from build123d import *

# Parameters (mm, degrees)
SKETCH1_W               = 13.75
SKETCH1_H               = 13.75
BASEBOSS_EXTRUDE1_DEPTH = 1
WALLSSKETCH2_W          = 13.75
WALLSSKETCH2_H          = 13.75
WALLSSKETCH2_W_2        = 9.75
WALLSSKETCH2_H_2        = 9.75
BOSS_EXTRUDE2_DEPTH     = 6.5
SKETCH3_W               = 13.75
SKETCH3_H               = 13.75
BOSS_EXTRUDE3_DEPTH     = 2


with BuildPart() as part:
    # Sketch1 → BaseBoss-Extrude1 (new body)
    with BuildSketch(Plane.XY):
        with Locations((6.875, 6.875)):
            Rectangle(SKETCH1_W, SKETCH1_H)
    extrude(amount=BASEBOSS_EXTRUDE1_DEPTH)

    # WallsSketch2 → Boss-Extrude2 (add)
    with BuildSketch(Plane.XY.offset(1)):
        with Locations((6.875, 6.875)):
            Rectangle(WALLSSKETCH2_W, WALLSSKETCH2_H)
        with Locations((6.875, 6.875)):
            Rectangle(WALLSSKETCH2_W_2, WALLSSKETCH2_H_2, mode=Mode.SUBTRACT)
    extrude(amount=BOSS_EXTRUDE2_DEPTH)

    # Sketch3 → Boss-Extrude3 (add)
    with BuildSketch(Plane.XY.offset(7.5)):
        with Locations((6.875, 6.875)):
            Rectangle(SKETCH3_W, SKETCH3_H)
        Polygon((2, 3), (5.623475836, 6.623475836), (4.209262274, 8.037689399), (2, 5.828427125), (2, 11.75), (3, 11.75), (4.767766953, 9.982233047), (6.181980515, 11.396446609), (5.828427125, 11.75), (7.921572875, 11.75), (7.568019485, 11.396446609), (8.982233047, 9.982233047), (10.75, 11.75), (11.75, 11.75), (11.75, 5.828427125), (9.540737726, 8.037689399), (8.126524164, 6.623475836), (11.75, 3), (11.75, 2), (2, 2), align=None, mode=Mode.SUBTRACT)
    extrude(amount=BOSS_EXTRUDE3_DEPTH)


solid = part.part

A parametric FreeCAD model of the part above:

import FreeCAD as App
import Part
import Sketcher

V = App.Vector

doc = App.newDocument("Part")
body = doc.addObject("PartDesign::Body", "Body")

sketch1 = doc.addObject("Sketcher::SketchObject", "Sketch")
body.addObject(sketch1)
sketch1.AttachmentSupport = (doc.XY_Plane, [""])
sketch1.MapMode = "FlatFace"
sketch1.addGeometry([
    Part.LineSegment(V(0, 14, 0), V(0, 0, 0)),
    Part.LineSegment(V(0, 0, 0), V(14, 0, 0)),
    Part.LineSegment(V(14, 0, 0), V(14, 14, 0)),
    Part.LineSegment(V(14, 14, 0), V(0, 14, 0)),
], False)
sketch1.addConstraint([
    Sketcher.Constraint("Coincident", 0, 2, 1, 1),
    Sketcher.Constraint("Coincident", 1, 2, 2, 1),
    Sketcher.Constraint("Coincident", 2, 2, 3, 1),
    Sketcher.Constraint("Coincident", 3, 2, 0, 1),
    Sketcher.Constraint("Vertical", 0),
    Sketcher.Constraint("Horizontal", 1),
    Sketcher.Constraint("Vertical", 2),
    Sketcher.Constraint("Horizontal", 3),
    Sketcher.Constraint("Coincident", 0, 2, -1, 1),
    Sketcher.Constraint("Equal", 3, 0),
    Sketcher.Constraint("DistanceX", 1, 1, 1, 2, 13.75),
])
pad1 = doc.addObject("PartDesign::Pad", "Pad")
body.addObject(pad1)
pad1.Profile = sketch1
pad1.Length = 1

sketch2 = doc.addObject("Sketcher::SketchObject", "Sketch001")
body.addObject(sketch2)
sketch2.AttachmentSupport = (doc.XY_Plane, [""])
sketch2.MapMode = "FlatFace"
sketch2.AttachmentOffset = App.Placement(V(0, 0, 1), App.Rotation())
sketch2.addGeometry([
    Part.LineSegment(V(0, 14, 0), V(0, 0, 0)),
    Part.LineSegment(V(0, 0, 0), V(14, 0, 0)),
    Part.LineSegment(V(14, 0, 0), V(14, 14, 0)),
    Part.LineSegment(V(14, 14, 0), V(0, 14, 0)),
    Part.LineSegment(V(12, 2, 0), V(2, 2, 0)),
    Part.LineSegment(V(2, 2, 0), V(2, 12, 0)),
    Part.LineSegment(V(2, 12, 0), V(12, 12, 0)),
    Part.LineSegment(V(12, 12, 0), V(12, 2, 0)),
], False)
sketch2.addConstraint([
    Sketcher.Constraint("Coincident", 0, 2, 1, 1),
    Sketcher.Constraint("Coincident", 1, 2, 2, 1),
    Sketcher.Constraint("Coincident", 2, 2, 3, 1),
    Sketcher.Constraint("Coincident", 3, 2, 0, 1),
    Sketcher.Constraint("Coincident", 4, 2, 5, 1),
    Sketcher.Constraint("Coincident", 5, 2, 6, 1),
    Sketcher.Constraint("Coincident", 6, 2, 7, 1),
    Sketcher.Constraint("Coincident", 7, 2, 4, 1),
    Sketcher.Constraint("Vertical", 0),
    Sketcher.Constraint("Horizontal", 1),
    Sketcher.Constraint("Vertical", 2),
    Sketcher.Constraint("Horizontal", 3),
    Sketcher.Constraint("Horizontal", 4),
    Sketcher.Constraint("Vertical", 5),
    Sketcher.Constraint("Horizontal", 6),
    Sketcher.Constraint("Vertical", 7),
    Sketcher.Constraint("Coincident", 0, 2, -1, 1),
    Sketcher.Constraint("Equal", 3, 0),
    Sketcher.Constraint("Equal", 6, 5),
    Sketcher.Constraint("DistanceX", -1, 1, 4, 2, 2.0),
    Sketcher.Constraint("DistanceY", -1, 1, 4, 2, 2.0),
    Sketcher.Constraint("DistanceY", 5, 2, 3, 2, 2.0),
    Sketcher.Constraint("DistanceX", 1, 1, 1, 2, 13.75),
])
pad2 = doc.addObject("PartDesign::Pad", "Pad001")
body.addObject(pad2)
pad2.Profile = sketch2
pad2.Length = 6.5

sketch3 = doc.addObject("Sketcher::SketchObject", "Sketch002")
body.addObject(sketch3)
sketch3.AttachmentSupport = (doc.XY_Plane, [""])
sketch3.MapMode = "FlatFace"
sketch3.AttachmentOffset = App.Placement(V(0, 0, 7.5), App.Rotation())
sketch3.addGeometry([
    Part.LineSegment(V(0, 13.75, 0), V(0, 0, 0)),
    Part.LineSegment(V(0, 0, 0), V(13.75, 0, 0)),
    Part.LineSegment(V(13.75, 0, 0), V(13.75, 13.75, 0)),
    Part.LineSegment(V(13.75, 13.75, 0), V(0, 13.75, 0)),
    Part.LineSegment(V(2, 2, 0), V(2, 3, 0)),
    Part.LineSegment(V(2, 3, 0), V(5.62, 6.62, 0)),
    Part.LineSegment(V(5.62, 6.62, 0), V(4.21, 8.04, 0)),
    Part.LineSegment(V(4.21, 8.04, 0), V(2, 5.83, 0)),
    Part.LineSegment(V(2, 5.83, 0), V(2, 11.75, 0)),
    Part.LineSegment(V(2, 11.75, 0), V(3, 11.75, 0)),
    Part.LineSegment(V(3, 11.75, 0), V(4.77, 9.98, 0)),
    Part.LineSegment(V(4.77, 9.98, 0), V(6.18, 11.4, 0)),
    Part.LineSegment(V(6.18, 11.4, 0), V(5.83, 11.75, 0)),
    Part.LineSegment(V(5.83, 11.75, 0), V(7.92, 11.75, 0)),
    Part.LineSegment(V(7.92, 11.75, 0), V(7.57, 11.4, 0)),
    Part.LineSegment(V(7.57, 11.4, 0), V(8.98, 9.98, 0)),
    Part.LineSegment(V(8.98, 9.98, 0), V(10.75, 11.75, 0)),
    Part.LineSegment(V(10.75, 11.75, 0), V(11.75, 11.75, 0)),
    Part.LineSegment(V(11.75, 11.75, 0), V(11.75, 5.83, 0)),
    Part.LineSegment(V(11.75, 5.83, 0), V(9.54, 8.04, 0)),
    Part.LineSegment(V(9.54, 8.04, 0), V(8.13, 6.62, 0)),
    Part.LineSegment(V(8.13, 6.62, 0), V(11.75, 3, 0)),
    Part.LineSegment(V(11.75, 3, 0), V(11.75, 2, 0)),
    Part.LineSegment(V(11.75, 2, 0), V(2, 2, 0)),
], False)
sketch3.addConstraint([
    Sketcher.Constraint("Coincident", 0, 2, 1, 1),
    Sketcher.Constraint("Coincident", 1, 2, 2, 1),
    Sketcher.Constraint("Coincident", 2, 2, 3, 1),
    Sketcher.Constraint("Coincident", 3, 2, 0, 1),
    Sketcher.Constraint("Coincident", 4, 2, 5, 1),
    Sketcher.Constraint("Coincident", 5, 2, 6, 1),
    Sketcher.Constraint("Coincident", 6, 2, 7, 1),
    Sketcher.Constraint("Coincident", 7, 2, 8, 1),
    Sketcher.Constraint("Coincident", 8, 2, 9, 1),
    Sketcher.Constraint("Coincident", 9, 2, 10, 1),
    Sketcher.Constraint("Coincident", 10, 2, 11, 1),
    Sketcher.Constraint("Coincident", 11, 2, 12, 1),
    Sketcher.Constraint("Coincident", 12, 2, 13, 1),
    Sketcher.Constraint("Coincident", 13, 2, 14, 1),
    Sketcher.Constraint("Coincident", 14, 2, 15, 1),
    Sketcher.Constraint("Coincident", 15, 2, 16, 1),
    Sketcher.Constraint("Coincident", 16, 2, 17, 1),
    Sketcher.Constraint("Coincident", 17, 2, 18, 1),
    Sketcher.Constraint("Coincident", 18, 2, 19, 1),
    Sketcher.Constraint("Coincident", 19, 2, 20, 1),
    Sketcher.Constraint("Coincident", 20, 2, 21, 1),
    Sketcher.Constraint("Coincident", 21, 2, 22, 1),
    Sketcher.Constraint("Coincident", 22, 2, 23, 1),
    Sketcher.Constraint("Coincident", 23, 2, 4, 1),
    Sketcher.Constraint("Vertical", 0),
    Sketcher.Constraint("Horizontal", 1),
    Sketcher.Constraint("Vertical", 2),
    Sketcher.Constraint("Horizontal", 3),
    Sketcher.Constraint("Vertical", 4),
    Sketcher.Constraint("Vertical", 8),
    Sketcher.Constraint("Horizontal", 9),
    Sketcher.Constraint("Horizontal", 13),
    Sketcher.Constraint("Horizontal", 17),
    Sketcher.Constraint("Vertical", 18),
    Sketcher.Constraint("Vertical", 22),
    Sketcher.Constraint("Horizontal", 23),
    Sketcher.Constraint("Coincident", 0, 2, -1, 1),
    Sketcher.Constraint("Perpendicular", 5, 6),
    Sketcher.Constraint("Perpendicular", 6, 7),
    Sketcher.Constraint("Perpendicular", 7, 10),
    Sketcher.Constraint("Perpendicular", 10, 11),
    Sketcher.Constraint("Perpendicular", 11, 12),
    Sketcher.Constraint("Perpendicular", 12, 14),
    Sketcher.Constraint("Perpendicular", 14, 15),
    Sketcher.Constraint("Perpendicular", 15, 16),
    Sketcher.Constraint("Perpendicular", 16, 19),
    Sketcher.Constraint("Perpendicular", 19, 20),
    Sketcher.Constraint("Perpendicular", 20, 21),
    Sketcher.Constraint("Horizontal", 9, 2, 12, 2),
    Sketcher.Constraint("Horizontal", 11, 2, 14, 2),
    Sketcher.Constraint("Horizontal", 10, 2, 15, 2),
    Sketcher.Constraint("Horizontal", 13, 2, 16, 2),
    Sketcher.Constraint("Horizontal", 7, 2, 18, 2),
    Sketcher.Constraint("Horizontal", 6, 2, 19, 2),
    Sketcher.Constraint("Horizontal", 5, 2, 20, 2),
    Sketcher.Constraint("Horizontal", 4, 2, 21, 2),
    Sketcher.Constraint("Vertical", 4, 2, 7, 2),
    Sketcher.Constraint("Vertical", 18, 2, 21, 2),
    Sketcher.Constraint("Equal", 9, 17),
    Sketcher.Constraint("Equal", 3, 0),
    Sketcher.Constraint("Equal", 17, 4),
    Sketcher.Constraint("Equal", 6, 11),
    Sketcher.Constraint("DistanceX", 9, 1, 9, 2, 1.0),
    Sketcher.Constraint("Distance", 6, 2.0),
    Sketcher.Constraint("DistanceX", -1, 1, 4, 2, 2.0),
    Sketcher.Constraint("DistanceY", -1, 1, 4, 2, 3.0),
    Sketcher.Constraint("DistanceY", 8, 2, 3, 2, 2.0),
    Sketcher.Constraint("DistanceX", 16, 2, 2, 2, 3.0),
    Sketcher.Constraint("Distance", 10, 2.5),
    Sketcher.Constraint("DistanceX", 1, 1, 1, 2, 13.75),
    Sketcher.Constraint("Distance", 5, 5.124369),
])
pad3 = doc.addObject("PartDesign::Pad", "Pad002")
body.addObject(pad3)
pad3.Profile = sketch3
pad3.Length = 2

doc.recompute()
